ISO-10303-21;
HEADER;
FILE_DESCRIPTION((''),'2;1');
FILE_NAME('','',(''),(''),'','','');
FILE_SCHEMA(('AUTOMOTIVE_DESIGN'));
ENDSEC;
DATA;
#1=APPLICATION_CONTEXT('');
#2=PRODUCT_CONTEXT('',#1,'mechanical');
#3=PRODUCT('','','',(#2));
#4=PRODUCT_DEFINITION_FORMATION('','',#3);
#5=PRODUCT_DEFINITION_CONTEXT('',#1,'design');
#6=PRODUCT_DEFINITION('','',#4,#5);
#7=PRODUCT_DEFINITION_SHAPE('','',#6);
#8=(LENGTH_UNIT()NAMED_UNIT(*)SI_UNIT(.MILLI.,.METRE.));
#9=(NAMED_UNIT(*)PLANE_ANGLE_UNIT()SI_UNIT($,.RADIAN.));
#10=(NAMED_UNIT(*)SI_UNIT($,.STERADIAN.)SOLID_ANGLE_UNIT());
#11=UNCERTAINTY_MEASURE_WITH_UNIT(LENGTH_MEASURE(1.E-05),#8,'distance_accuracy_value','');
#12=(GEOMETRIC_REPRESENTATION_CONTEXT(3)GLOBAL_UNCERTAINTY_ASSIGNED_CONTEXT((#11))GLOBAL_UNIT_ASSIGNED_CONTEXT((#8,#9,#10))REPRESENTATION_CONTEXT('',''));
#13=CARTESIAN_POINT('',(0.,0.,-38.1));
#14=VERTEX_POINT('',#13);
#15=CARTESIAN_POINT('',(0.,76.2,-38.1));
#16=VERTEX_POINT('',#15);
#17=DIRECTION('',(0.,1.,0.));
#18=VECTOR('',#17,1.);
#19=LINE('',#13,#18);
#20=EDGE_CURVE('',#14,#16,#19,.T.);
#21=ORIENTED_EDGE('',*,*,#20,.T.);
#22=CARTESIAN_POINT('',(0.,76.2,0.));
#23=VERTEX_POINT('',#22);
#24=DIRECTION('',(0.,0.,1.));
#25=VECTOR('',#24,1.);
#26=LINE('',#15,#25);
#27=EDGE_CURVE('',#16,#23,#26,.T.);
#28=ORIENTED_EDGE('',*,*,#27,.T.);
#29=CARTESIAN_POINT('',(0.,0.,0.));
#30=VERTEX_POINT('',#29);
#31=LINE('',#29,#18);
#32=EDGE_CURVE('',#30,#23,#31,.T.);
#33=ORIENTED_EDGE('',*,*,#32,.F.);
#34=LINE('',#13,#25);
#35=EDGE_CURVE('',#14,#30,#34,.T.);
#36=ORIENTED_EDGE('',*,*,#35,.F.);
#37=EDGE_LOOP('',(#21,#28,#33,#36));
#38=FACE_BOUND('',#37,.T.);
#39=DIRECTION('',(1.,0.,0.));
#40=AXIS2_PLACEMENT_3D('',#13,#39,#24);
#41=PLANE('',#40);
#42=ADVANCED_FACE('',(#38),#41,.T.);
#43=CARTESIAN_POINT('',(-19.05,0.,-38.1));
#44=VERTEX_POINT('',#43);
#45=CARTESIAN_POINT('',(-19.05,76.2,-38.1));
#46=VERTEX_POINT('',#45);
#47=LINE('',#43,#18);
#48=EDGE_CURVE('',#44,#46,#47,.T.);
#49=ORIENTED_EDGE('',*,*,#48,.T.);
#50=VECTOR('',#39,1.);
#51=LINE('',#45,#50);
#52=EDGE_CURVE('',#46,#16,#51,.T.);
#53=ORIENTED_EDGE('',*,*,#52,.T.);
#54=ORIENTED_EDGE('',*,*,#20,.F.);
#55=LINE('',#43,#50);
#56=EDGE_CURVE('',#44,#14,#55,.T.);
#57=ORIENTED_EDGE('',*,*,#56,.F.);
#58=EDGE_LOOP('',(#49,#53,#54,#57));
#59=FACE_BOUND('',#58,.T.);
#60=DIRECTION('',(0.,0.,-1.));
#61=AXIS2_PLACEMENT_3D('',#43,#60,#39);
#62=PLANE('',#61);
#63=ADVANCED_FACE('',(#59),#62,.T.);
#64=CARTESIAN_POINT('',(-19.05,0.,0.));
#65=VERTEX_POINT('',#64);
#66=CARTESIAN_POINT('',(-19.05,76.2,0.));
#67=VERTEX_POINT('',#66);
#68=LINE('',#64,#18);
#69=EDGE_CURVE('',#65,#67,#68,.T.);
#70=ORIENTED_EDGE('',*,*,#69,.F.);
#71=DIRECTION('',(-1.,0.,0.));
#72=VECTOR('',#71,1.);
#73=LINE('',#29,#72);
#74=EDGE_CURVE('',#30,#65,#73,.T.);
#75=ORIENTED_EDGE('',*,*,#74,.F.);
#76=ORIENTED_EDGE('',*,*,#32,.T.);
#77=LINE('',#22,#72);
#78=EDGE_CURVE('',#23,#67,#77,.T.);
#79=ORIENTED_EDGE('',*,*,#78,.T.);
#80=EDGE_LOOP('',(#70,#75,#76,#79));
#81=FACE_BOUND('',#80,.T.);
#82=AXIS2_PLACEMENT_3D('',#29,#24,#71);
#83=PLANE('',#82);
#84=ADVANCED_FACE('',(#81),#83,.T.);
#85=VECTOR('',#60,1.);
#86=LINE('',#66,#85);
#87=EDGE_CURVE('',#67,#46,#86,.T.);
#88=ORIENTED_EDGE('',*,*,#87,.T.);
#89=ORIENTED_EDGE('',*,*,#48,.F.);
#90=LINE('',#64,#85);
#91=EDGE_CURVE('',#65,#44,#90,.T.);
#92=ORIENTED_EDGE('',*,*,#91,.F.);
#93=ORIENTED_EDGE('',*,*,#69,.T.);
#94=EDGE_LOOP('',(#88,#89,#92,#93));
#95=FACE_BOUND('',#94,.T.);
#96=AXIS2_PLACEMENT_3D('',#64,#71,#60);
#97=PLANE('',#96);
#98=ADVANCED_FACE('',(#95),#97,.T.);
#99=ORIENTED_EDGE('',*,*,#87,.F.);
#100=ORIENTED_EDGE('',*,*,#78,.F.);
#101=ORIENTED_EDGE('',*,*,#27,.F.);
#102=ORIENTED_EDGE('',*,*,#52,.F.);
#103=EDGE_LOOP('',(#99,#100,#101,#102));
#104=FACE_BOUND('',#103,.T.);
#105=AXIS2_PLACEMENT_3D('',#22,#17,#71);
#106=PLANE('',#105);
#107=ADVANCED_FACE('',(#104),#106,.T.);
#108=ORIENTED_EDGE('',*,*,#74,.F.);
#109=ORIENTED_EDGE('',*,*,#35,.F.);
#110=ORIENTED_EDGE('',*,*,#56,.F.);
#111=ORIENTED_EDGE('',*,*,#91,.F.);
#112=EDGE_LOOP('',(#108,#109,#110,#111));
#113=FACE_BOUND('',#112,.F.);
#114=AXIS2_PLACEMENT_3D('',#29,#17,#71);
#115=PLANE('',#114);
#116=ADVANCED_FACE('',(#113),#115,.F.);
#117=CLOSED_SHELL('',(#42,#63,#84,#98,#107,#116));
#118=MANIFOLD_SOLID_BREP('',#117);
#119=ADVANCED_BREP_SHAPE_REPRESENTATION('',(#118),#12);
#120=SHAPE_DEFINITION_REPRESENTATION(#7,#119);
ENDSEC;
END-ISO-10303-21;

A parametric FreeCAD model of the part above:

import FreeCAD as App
import Part
import Sketcher

V = App.Vector
Q = App.Units.Quantity

doc = App.newDocument("Part")
body = doc.addObject("PartDesign::Body", "Body")

# Sketch on XZ plane
sketch1 = body.newObject("Sketcher::SketchObject", "Sketch")
sketch1.AttachmentSupport = (doc.getObject("XZ_Plane"), [""])
sketch1.MapMode = "FlatFace"
sketch1.addGeometry([
    Part.LineSegment(V(-19, 0, 0), V(0, 0, 0)),
    Part.LineSegment(V(0, 0, 0), V(0, -38, 0)),
    Part.LineSegment(V(0, -38, 0), V(-19, -38, 0)),
    Part.LineSegment(V(-19, -38, 0), V(-19, 0, 0)),
], False)
sketch1.addConstraint([
    Sketcher.Constraint("Coincident", 0, 2, 1, 1),
    Sketcher.Constraint("Coincident", 1, 2, 2, 1),
    Sketcher.Constraint("Coincident", 2, 2, 3, 1),
    Sketcher.Constraint("Coincident", 3, 2, 0, 1),
    Sketcher.Constraint("Horizontal", 0),
    Sketcher.Constraint("Vertical", 1),
    Sketcher.Constraint("Horizontal", 2),
    Sketcher.Constraint("Vertical", 3),
    Sketcher.Constraint("Coincident", 0, 2, -1, 1),
    Sketcher.Constraint("DistanceY", 1, 2, 1, 1, Q("1.5 in")),
    Sketcher.Constraint("DistanceX", 0, 1, 0, 2, Q("0.75 in")),
])
pad1 = body.newObject("PartDesign::Pad", "Pad")
pad1.Profile = sketch1
pad1.Length = Q("3 in")
pad1.Reversed = True

doc.recompute()
